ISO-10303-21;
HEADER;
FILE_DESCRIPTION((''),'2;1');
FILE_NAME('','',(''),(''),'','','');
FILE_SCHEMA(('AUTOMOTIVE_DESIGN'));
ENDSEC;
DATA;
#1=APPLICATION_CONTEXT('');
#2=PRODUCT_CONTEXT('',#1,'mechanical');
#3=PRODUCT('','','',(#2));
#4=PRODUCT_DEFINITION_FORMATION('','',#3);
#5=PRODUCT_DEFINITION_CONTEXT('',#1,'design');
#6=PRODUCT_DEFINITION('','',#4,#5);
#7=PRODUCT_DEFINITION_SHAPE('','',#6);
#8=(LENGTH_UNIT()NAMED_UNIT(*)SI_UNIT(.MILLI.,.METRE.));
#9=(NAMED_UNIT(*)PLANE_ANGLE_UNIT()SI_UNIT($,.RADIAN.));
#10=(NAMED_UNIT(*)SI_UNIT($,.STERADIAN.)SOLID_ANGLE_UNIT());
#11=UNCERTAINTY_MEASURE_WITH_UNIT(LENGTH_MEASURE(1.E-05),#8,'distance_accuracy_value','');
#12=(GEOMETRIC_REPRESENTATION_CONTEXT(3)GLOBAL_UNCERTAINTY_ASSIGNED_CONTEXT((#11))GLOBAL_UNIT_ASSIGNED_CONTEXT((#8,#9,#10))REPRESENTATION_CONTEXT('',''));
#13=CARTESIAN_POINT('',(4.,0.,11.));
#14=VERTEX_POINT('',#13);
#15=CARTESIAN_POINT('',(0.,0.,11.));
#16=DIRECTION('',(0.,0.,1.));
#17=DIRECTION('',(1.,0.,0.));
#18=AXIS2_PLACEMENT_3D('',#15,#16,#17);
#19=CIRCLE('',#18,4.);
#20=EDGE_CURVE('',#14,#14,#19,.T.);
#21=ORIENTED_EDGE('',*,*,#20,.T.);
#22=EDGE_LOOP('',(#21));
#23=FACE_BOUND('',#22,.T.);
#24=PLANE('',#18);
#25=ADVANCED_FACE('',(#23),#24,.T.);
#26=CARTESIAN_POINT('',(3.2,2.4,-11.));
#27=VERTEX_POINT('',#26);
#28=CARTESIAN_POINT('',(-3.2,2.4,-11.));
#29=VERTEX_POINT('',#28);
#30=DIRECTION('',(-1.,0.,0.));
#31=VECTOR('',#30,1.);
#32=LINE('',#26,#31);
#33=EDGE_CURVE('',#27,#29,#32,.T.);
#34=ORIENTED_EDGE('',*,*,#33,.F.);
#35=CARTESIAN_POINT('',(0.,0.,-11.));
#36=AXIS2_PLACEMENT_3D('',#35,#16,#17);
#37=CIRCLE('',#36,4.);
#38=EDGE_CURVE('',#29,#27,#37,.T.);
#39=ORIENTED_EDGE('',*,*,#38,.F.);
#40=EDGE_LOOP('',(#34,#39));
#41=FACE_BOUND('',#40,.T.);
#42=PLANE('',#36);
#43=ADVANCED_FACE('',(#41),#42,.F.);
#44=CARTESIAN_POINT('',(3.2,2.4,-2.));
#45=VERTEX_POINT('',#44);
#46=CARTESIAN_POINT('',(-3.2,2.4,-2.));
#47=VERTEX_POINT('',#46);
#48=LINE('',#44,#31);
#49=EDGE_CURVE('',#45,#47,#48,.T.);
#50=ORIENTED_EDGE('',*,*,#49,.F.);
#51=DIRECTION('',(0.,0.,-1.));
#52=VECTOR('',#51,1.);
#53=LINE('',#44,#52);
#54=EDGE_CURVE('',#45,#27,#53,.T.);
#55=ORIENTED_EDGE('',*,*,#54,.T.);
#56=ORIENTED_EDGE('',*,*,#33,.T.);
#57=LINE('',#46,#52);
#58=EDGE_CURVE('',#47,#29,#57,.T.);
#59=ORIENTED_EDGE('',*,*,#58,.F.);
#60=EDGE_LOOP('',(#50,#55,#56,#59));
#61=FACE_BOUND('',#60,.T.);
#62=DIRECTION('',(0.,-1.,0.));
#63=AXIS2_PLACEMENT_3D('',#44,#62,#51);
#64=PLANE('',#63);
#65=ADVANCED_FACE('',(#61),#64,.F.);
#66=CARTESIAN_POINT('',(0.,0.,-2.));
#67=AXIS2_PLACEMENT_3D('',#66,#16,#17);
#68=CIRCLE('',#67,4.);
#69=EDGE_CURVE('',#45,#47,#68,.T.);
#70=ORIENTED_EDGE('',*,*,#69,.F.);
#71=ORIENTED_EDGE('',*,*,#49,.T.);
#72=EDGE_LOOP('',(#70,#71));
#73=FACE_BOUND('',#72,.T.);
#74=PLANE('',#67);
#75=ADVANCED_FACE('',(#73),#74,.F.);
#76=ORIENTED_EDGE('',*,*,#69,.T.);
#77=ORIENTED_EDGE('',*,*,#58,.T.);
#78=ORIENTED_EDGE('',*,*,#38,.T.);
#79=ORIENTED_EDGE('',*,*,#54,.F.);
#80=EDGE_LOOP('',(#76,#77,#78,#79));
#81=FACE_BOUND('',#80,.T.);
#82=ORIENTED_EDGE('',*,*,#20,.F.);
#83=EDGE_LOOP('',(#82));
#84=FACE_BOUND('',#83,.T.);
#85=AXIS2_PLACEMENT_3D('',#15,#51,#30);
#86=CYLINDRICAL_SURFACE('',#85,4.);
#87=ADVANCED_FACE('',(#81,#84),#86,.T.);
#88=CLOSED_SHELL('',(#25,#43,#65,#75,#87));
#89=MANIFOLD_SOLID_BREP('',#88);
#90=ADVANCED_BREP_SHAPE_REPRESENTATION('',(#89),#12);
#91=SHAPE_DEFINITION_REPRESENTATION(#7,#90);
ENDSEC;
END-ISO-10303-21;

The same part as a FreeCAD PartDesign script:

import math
import FreeCAD as App
import Part
import Sketcher

V = App.Vector

doc = App.newDocument("Part")
body = doc.addObject("PartDesign::Body", "Body")

# Sketch on XY plane
sketch1 = body.newObject("Sketcher::SketchObject", "Sketch")
sketch1.AttachmentSupport = (doc.getObject("XY_Plane"), [""])
sketch1.MapMode = "FlatFace"
sketch1.addGeometry(Part.Circle(V(0, 0, 0), V(0, 0, 1), 4), False)
sketch1.addConstraint([
    Sketcher.Constraint("Coincident", 0, 3, -1, 1),
    Sketcher.Constraint("Diameter", 0, 8.0),
])
pad1 = body.newObject("PartDesign::Pad", "Pad")
pad1.Profile = sketch1
pad1.Length = 22
pad1.Midplane = True

# Sketch on XY plane
sketch2 = body.newObject("Sketcher::SketchObject", "Sketch001")
sketch2.AttachmentSupport = (doc.getObject("XY_Plane"), [""])
sketch2.MapMode = "FlatFace"
sketch2.AttachmentOffset = App.Placement(V(0, 0, -11), App.Rotation())
sketch2.addGeometry([
    Part.LineSegment(V(3.2, 2.4, 0), V(-3.2, 2.4, 0)),
    Part.ArcOfCircle(Part.Circle(V(0, 0, 0), V(0, 0, 1), 4), math.radians(36.869898), math.radians(143.130102)),
], False)
sketch2.addConstraint([
    Sketcher.Constraint("Coincident", 0, 1, 1, 1),
    Sketcher.Constraint("Coincident", 1, 2, 0, 2),
    Sketcher.Constraint("Horizontal", 0),
    Sketcher.Constraint("Coincident", 1, 3, -1, 1),
    Sketcher.Constraint("Radius", 1, 4.0),
    Sketcher.Constraint("DistanceX", 0, 2, 0, 1, 6.4),
])
pocket1 = body.newObject("PartDesign::Pocket", "Pocket")
pocket1.Profile = sketch2
pocket1.Length = 9
pocket1.Reversed = True

doc.recompute()
